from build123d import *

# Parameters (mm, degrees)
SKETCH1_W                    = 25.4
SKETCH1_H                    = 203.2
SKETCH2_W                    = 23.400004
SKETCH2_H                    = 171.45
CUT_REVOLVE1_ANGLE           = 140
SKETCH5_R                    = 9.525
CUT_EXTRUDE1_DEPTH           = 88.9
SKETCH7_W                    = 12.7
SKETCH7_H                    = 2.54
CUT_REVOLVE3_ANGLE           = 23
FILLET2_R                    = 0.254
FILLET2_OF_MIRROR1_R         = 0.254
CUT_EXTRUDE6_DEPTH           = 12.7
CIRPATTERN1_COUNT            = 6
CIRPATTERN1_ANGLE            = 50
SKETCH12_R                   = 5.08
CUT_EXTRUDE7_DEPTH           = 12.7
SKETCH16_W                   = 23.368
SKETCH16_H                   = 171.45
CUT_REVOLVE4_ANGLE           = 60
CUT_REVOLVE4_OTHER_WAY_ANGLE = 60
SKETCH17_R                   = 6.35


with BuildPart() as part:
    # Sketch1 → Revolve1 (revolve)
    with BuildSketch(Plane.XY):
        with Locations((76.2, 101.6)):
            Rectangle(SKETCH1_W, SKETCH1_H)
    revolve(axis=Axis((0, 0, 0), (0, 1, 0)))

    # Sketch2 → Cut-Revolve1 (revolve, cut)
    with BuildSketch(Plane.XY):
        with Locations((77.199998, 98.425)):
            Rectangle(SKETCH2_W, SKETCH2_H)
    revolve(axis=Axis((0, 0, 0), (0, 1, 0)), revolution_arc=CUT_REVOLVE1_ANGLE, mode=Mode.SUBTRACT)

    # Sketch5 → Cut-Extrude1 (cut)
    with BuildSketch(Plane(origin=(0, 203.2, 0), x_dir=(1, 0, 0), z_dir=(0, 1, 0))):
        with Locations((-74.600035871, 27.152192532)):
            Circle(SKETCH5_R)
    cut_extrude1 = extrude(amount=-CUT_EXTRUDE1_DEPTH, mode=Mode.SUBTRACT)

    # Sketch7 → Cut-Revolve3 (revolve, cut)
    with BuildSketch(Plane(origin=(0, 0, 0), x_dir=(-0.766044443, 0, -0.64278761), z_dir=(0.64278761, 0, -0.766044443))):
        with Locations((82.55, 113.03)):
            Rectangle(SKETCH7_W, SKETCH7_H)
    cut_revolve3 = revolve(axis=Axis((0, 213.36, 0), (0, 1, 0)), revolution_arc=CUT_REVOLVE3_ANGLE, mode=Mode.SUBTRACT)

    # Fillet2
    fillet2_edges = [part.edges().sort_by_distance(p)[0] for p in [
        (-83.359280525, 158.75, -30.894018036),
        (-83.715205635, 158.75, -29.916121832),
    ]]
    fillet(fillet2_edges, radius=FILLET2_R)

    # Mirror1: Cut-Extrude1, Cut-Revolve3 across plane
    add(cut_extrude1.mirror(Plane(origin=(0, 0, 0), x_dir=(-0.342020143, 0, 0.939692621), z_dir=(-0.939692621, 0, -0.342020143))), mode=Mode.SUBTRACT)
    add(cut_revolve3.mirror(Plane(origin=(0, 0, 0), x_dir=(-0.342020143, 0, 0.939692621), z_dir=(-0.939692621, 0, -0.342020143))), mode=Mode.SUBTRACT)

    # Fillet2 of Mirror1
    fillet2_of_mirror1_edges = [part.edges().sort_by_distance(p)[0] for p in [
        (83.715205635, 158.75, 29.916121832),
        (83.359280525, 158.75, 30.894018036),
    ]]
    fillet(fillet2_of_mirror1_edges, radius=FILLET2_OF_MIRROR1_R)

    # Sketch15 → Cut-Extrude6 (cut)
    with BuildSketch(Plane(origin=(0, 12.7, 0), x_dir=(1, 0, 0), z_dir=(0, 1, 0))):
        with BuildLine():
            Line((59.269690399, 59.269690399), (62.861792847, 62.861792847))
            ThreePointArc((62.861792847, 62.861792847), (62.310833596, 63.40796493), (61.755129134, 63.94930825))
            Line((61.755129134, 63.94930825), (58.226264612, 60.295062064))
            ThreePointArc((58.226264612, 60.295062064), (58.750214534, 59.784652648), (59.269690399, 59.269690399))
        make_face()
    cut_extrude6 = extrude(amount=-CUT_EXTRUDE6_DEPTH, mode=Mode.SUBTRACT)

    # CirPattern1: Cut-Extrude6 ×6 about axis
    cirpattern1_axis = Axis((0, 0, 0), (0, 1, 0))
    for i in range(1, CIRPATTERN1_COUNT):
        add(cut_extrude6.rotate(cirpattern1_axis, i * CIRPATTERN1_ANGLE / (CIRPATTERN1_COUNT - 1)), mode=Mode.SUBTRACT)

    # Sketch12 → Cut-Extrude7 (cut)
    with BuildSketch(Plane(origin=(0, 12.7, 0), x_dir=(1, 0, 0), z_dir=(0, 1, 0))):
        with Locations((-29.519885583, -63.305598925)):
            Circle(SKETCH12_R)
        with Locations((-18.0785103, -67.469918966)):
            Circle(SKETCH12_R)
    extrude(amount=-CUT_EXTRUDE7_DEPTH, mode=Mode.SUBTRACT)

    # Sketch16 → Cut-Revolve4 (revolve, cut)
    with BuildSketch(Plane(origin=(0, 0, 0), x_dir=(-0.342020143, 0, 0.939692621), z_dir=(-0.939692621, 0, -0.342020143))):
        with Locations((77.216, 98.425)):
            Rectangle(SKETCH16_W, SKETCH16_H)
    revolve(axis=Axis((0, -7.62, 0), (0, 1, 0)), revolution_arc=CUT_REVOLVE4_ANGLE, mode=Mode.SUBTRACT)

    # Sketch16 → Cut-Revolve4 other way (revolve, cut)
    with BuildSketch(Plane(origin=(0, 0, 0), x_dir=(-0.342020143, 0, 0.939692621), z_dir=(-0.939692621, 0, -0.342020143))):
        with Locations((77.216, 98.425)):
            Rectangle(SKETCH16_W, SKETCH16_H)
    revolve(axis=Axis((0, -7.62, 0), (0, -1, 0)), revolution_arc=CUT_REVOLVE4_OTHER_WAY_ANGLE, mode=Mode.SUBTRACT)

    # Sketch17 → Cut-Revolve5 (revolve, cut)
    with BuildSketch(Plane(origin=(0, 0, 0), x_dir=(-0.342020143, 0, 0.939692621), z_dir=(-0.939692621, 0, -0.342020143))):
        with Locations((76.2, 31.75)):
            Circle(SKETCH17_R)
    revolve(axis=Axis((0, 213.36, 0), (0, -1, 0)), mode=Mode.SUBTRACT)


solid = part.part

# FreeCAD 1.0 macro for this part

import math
import FreeCAD as App
import Part
import Sketcher

V = App.Vector
Q = App.Units.Quantity


def edges_at(feature, points):
    """Names of the edges that pass closest to the given points."""
    edges = feature.Shape.Edges
    near = lambda p: min(range(len(edges)), key=lambda i: edges[i].distToShape(Part.Vertex(*p))[0])
    return sorted({f"Edge{near(p) + 1}" for p in points})


def add_polygon(sketch, points):
    """Adds a closed chain of lines whose ends are joined by coincident constraints."""
    first, n = sketch.GeometryCount, len(points)
    for a, b in zip(points, points[1:] + points[:1]):
        sketch.addGeometry(Part.LineSegment(App.Vector(*a, 0), App.Vector(*b, 0)), False)
    for i in range(n):
        sketch.addConstraint(Sketcher.Constraint("Coincident", first + i, 2, first + (i + 1) % n, 1))

doc = App.newDocument("Part")
params = doc.addObject("Spreadsheet::Sheet", "Params")
for row, (alias, value) in enumerate([
    ("sketch1_width", "1 in"),
    ("sketch1_height", "8 in"),
    ("revolution_angle", "360 deg"),
    ("sketch2_height", "6.75 in"),
    ("groove_angle", "140 deg"),
    ("sketch3_diameter", "0.75 in"),
    ("pocket1_length", "3.5 in"),
    ("sketch4_width", "0.5 in"),
    ("sketch4_height", "0.1 in"),
    ("groove2_angle", "23 deg"),
    ("fillet_radius", "0.01 in"),
    ("fillet2_radius", "0.01 in"),
    ("sketch5_length", "0.2 in"),
    ("pocket2_length", "0.5 in"),
    ("sketch6_diameter", "0.4 in"),
    ("pocket3_length", "0.5 in"),
    ("sketch7_width", "0.92 in"),
    ("sketch7_height", "6.75 in"),
    ("groove3_angle", "60 deg"),
    ("sketch8_width", "0.92 in"),
    ("sketch8_height", "6.75 in"),
    ("groove4_angle", "60 deg"),
    ("sketch9_diameter", "0.5 in"),
    ("groove5_angle", "360 deg"),
], start=1):
    params.set(f"A{row}", alias)
    params.set(f"B{row}", "=" + value)
    params.setAlias(f"B{row}", alias)

body = doc.addObject("PartDesign::Body", "Body")

# Sketch on XY plane
sketch1 = doc.addObject("Sketcher::SketchObject", "Sketch")
body.addObject(sketch1)
sketch1.AttachmentSupport = (doc.XY_Plane, [""])
sketch1.MapMode = "FlatFace"
add_polygon(sketch1, [(64, 203), (64, 0), (89, 0), (89, 203)])  # lines 0-3
sketch1.addConstraint([
    Sketcher.Constraint("Vertical", 0),
    Sketcher.Constraint("Horizontal", 1),
    Sketcher.Constraint("Vertical", 2),
    Sketcher.Constraint("Horizontal", 3),
    Sketcher.Constraint("PointOnObject", 0, 2, -1),
    Sketcher.Constraint("DistanceX", 1, 1, 1, 2, Q("1 in")),
    Sketcher.Constraint("DistanceY", 0, 2, 0, 1, Q("8 in")),
    Sketcher.Constraint("DistanceX", -1, 1, 0, 2, Q("2.5 in")),
])
sketch1.setExpression("Constraints[9]", "Params.sketch1_width")
sketch1.setExpression("Constraints[10]", "Params.sketch1_height")
revolution = doc.addObject("PartDesign::Revolution", "Revolution")
body.addObject(revolution)
revolution.Profile = sketch1
revolution.ReferenceAxis = (sketch1, ["V_Axis"])
revolution.setExpression("Angle", "Params.revolution_angle")

# Sketch on XY plane
sketch2 = doc.addObject("Sketcher::SketchObject", "Sketch001")
body.addObject(sketch2)
sketch2.AttachmentSupport = (doc.XY_Plane, [""])
sketch2.MapMode = "FlatFace"
add_polygon(sketch2, [(65, 184), (65, 13), (89, 13), (89, 184)])  # lines 0-3
sketch2.addConstraint([
    Sketcher.Constraint("Vertical", 0),
    Sketcher.Constraint("Horizontal", 1),
    Sketcher.Constraint("Vertical", 2),
    Sketcher.Constraint("Horizontal", 3),
    Sketcher.Constraint("DistanceY", 0, 2, 0, 1, Q("6.75 in")),
    Sketcher.Constraint("DistanceY", -1, 1, 0, 2, Q("0.5 in")),
    Sketcher.Constraint("DistanceX", -1, 1, 1, 2, Q("3.5 in")),
    Sketcher.Constraint("DistanceX", 1, 1, 1, 2, 23.400004),
])
sketch2.setExpression("Constraints[8]", "Params.sketch2_height")
groove = doc.addObject("PartDesign::Groove", "Groove")
body.addObject(groove)
groove.Profile = sketch2
groove.ReferenceAxis = (sketch2, ["V_Axis"])
groove.setExpression("Angle", "Params.groove_angle")

# Sketch on XZ plane
sketch3 = doc.addObject("Sketcher::SketchObject", "Sketch002")
body.addObject(sketch3)
sketch3.AttachmentSupport = (doc.XZ_Plane, [""])
sketch3.MapMode = "FlatFace"
sketch3.AttachmentOffset = App.Placement(V(0, 0, -8 * 25.4), App.Rotation())
sketch3.addGeometry(Part.Circle(V(-75, -27, 0), V(0, 0, 1), 10), False)
sketch3.addConstraint([
    Sketcher.Constraint("Diameter", 0, Q("0.75 in")),
    Sketcher.Constraint("DistanceX", 0, 3, -1, 1, 74.600036),
    Sketcher.Constraint("DistanceY", 0, 3, -1, 1, 27.152193),
])
sketch3.setExpression("Constraints[0]", "Params.sketch3_diameter")
pocket1 = doc.addObject("PartDesign::Pocket", "Pocket")
body.addObject(pocket1)
pocket1.Profile = sketch3
pocket1.setExpression("Length", "Params.pocket1_length")
pocket1.Reversed = True

# Sketch on an angled plane
sketch4 = doc.addObject("Sketcher::SketchObject", "Sketch003")
body.addObject(sketch4)
sketch4.Placement = App.Placement(V(0, 0, 0), App.Rotation(V(-0.766044443, 0, -0.64278761), V(0, 1, 0), V(0.64278761, 0, -0.766044443), "ZXY"))
add_polygon(sketch4, [(76.2, 114.3), (76.2, 111.8), (88.9, 111.8), (88.9, 114.3)])  # lines 0-3
sketch4.addConstraint([
    Sketcher.Constraint("Vertical", 0),
    Sketcher.Constraint("Horizontal", 1),
    Sketcher.Constraint("Vertical", 2),
    Sketcher.Constraint("Horizontal", 3),
    Sketcher.Constraint("DistanceX", 1, 1, 1, 2, Q("0.5 in")),
    Sketcher.Constraint("DistanceY", 0, 2, 0, 1, Q("0.1 in")),
    Sketcher.Constraint("DistanceX", -1, 1, 0, 2, Q("3 in")),
    Sketcher.Constraint("DistanceY", -1, 1, 0, 2, Q("4.4 in")),
])
sketch4.setExpression("Constraints[8]", "Params.sketch4_width")
sketch4.setExpression("Constraints[9]", "Params.sketch4_height")
groove2 = doc.addObject("PartDesign::Groove", "Groove001")
body.addObject(groove2)
groove2.Profile = sketch4
groove2.ReferenceAxis = (sketch4, ["V_Axis"])
groove2.setExpression("Angle", "Params.groove2_angle")
doc.recompute()

fillet = doc.addObject("PartDesign::Fillet", "Fillet")
body.addObject(fillet)
fillet.Base = (groove2, edges_at(groove2, [(-83.359, 158.75, -30.894), (-83.715, 158.75, -29.916)]))
fillet.setExpression("Radius", "Params.fillet_radius")
doc.recompute()

datumplane = doc.addObject("PartDesign::Plane", "DatumPlane")
body.addObject(datumplane)
datumplane.Placement = App.Placement(V(0, 0, 0), App.Rotation(V(0.342020143, 0, -0.939692621), V(0, -1, 0), V(-0.939692621, 0, -0.342020143), "ZXY"))
mirrored = doc.addObject("PartDesign::Mirrored", "Mirrored")
body.addObject(mirrored)
mirrored.Originals = [pocket1, groove2]
mirrored.MirrorPlane = (datumplane, [""])
body.Tip = mirrored
doc.recompute()

fillet2 = doc.addObject("PartDesign::Fillet", "Fillet001")
body.addObject(fillet2)
fillet2.Base = (mirrored, edges_at(mirrored, [(83.715, 158.75, 29.916), (83.359, 158.75, 30.894)]))
fillet2.setExpression("Radius", "Params.fillet2_radius")

# Sketch on XZ plane
sketch5 = doc.addObject("Sketcher::SketchObject", "Sketch004")
body.addObject(sketch5)
sketch5.AttachmentSupport = (doc.XZ_Plane, [""])
sketch5.MapMode = "FlatFace"
sketch5.AttachmentOffset = App.Placement(V(0, 0, -0.5 * 25.4), App.Rotation())
sketch5.addGeometry([
    Part.LineSegment(V(59.3, -59.3, 0), V(62.9, -62.9, 0)),
    Part.ArcOfCircle(Part.Circle(V(0, 0, 0), V(0, 0, 1), 88.9), math.radians(-46), math.radians(-45)),
    Part.LineSegment(V(61.8, -63.9, 0), V(58.2, -60.3, 0)),
    Part.ArcOfCircle(Part.Circle(V(0, 0, 0), V(0, 0, 1), 83.8), math.radians(-46), math.radians(-45)),
], False)
sketch5.addConstraint([
    Sketcher.Constraint("Coincident", 0, 2, 1, 2),
    Sketcher.Constraint("Coincident", 1, 1, 2, 1),
    Sketcher.Constraint("Coincident", 2, 2, 3, 1),
    Sketcher.Constraint("Coincident", 3, 2, 0, 1),
    Sketcher.Constraint("Coincident", 1, 3, -1, 1),
    Sketcher.Constraint("Coincident", 3, 3, -1, 1),
    Sketcher.Constraint("Angle", 0, Q("-45 deg")),
    Sketcher.Constraint("Angle", 2, Q("134 deg")),
    Sketcher.Constraint("Distance", 0, Q("0.2 in")),
    Sketcher.Constraint("Radius", 3, 83.819991),
    Sketcher.Constraint("DistanceX", -1, 1, 1, 1, 61.755129),
    Sketcher.Constraint("DistanceX", -1, 1, 3, 2, 59.26969),
])
sketch5.setExpression("Constraints[8]", "Params.sketch5_length")
pocket2 = doc.addObject("PartDesign::Pocket", "Pocket001")
body.addObject(pocket2)
pocket2.Profile = sketch5
pocket2.setExpression("Length", "Params.pocket2_length")
pocket2.Reversed = True
doc.recompute()

polarpattern = doc.addObject("PartDesign::PolarPattern", "PolarPattern")
body.addObject(polarpattern)
polarpattern.Originals = [pocket2]
polarpattern.Axis = (doc.Y_Axis, [""])
polarpattern.Angle = 50
polarpattern.Occurrences = 6
body.Tip = polarpattern

# Sketch on XZ plane
sketch6 = doc.addObject("Sketcher::SketchObject", "Sketch005")
body.addObject(sketch6)
sketch6.AttachmentSupport = (doc.XZ_Plane, [""])
sketch6.MapMode = "FlatFace"
sketch6.AttachmentOffset = App.Placement(V(0, 0, -0.5 * 25.4), App.Rotation())
sketch6.addGeometry([
    Part.Circle(V(-30, 63, 0), V(0, 0, 1), 5),
    Part.Circle(V(-18, 67, 0), V(0, 0, 1), 5),
], False)
sketch6.addConstraint([
    Sketcher.Constraint("Equal", 0, 1),
    Sketcher.Constraint("Diameter", 0, Q("0.4 in")),
    Sketcher.Constraint("DistanceY", -1, 1, 0, 3, 63.305599),
    Sketcher.Constraint("DistanceX", 1, 3, -1, 1, 18.07851),
    Sketcher.Constraint("DistanceY", -1, 1, 1, 3, 67.469919),
    Sketcher.Constraint("DistanceX", 0, 3, -1, 1, 29.519886),
])
sketch6.setExpression("Constraints[1]", "Params.sketch6_diameter")
pocket3 = doc.addObject("PartDesign::Pocket", "Pocket002")
body.addObject(pocket3)
pocket3.Profile = sketch6
pocket3.setExpression("Length", "Params.pocket3_length")
pocket3.Reversed = True

# Sketch on an angled plane
sketch7 = doc.addObject("Sketcher::SketchObject", "Sketch006")
body.addObject(sketch7)
sketch7.Placement = App.Placement(V(0, 0, 0), App.Rotation(V(-0.342020143, 0, 0.939692621), V(0, 1, 0), V(-0.939692621, 0, -0.342020143), "ZXY"))
add_polygon(sketch7, [(66, 184), (66, 13), (89, 13), (89, 184)])  # lines 0-3
sketch7.addConstraint([
    Sketcher.Constraint("Vertical", 0),
    Sketcher.Constraint("Horizontal", 1),
    Sketcher.Constraint("Vertical", 2),
    Sketcher.Constraint("Horizontal", 3),
    Sketcher.Constraint("DistanceX", 1, 1, 1, 2, Q("0.92 in")),
    Sketcher.Constraint("DistanceY", 0, 2, 0, 1, Q("6.75 in")),
    Sketcher.Constraint("DistanceY", -1, 1, 0, 2, Q("0.5 in")),
    Sketcher.Constraint("DistanceX", -1, 1, 1, 2, Q("3.5 in")),
])
sketch7.setExpression("Constraints[8]", "Params.sketch7_width")
sketch7.setExpression("Constraints[9]", "Params.sketch7_height")
groove3 = doc.addObject("PartDesign::Groove", "Groove002")
body.addObject(groove3)
groove3.Profile = sketch7
groove3.ReferenceAxis = (sketch7, ["V_Axis"])
groove3.setExpression("Angle", "Params.groove3_angle")

# Sketch on an angled plane
sketch8 = doc.addObject("Sketcher::SketchObject", "Sketch007")
body.addObject(sketch8)
sketch8.Placement = App.Placement(V(0, 0, 0), App.Rotation(V(-0.342020143, 0, 0.939692621), V(0, 1, 0), V(-0.939692621, 0, -0.342020143), "ZXY"))
add_polygon(sketch8, [(66, 184), (66, 13), (89, 13), (89, 184)])  # lines 0-3
sketch8.addConstraint([
    Sketcher.Constraint("Vertical", 0),
    Sketcher.Constraint("Horizontal", 1),
    Sketcher.Constraint("Vertical", 2),
    Sketcher.Constraint("Horizontal", 3),
    Sketcher.Constraint("DistanceX", 1, 1, 1, 2, Q("0.92 in")),
    Sketcher.Constraint("DistanceY", 0, 2, 0, 1, Q("6.75 in")),
    Sketcher.Constraint("DistanceY", -1, 1, 0, 2, Q("0.5 in")),
    Sketcher.Constraint("DistanceX", -1, 1, 1, 2, Q("3.5 in")),
])
sketch8.setExpression("Constraints[8]", "Params.sketch8_width")
sketch8.setExpression("Constraints[9]", "Params.sketch8_height")
groove4 = doc.addObject("PartDesign::Groove", "Groove003")
body.addObject(groove4)
groove4.Profile = sketch8
groove4.ReferenceAxis = (sketch8, ["V_Axis"])
groove4.setExpression("Angle", "Params.groove4_angle")
groove4.Reversed = True

# Sketch on an angled plane
sketch9 = doc.addObject("Sketcher::SketchObject", "Sketch008")
body.addObject(sketch9)
sketch9.Placement = App.Placement(V(0, 0, 0), App.Rotation(V(-0.342020143, 0, 0.939692621), V(0, 1, 0), V(-0.939692621, 0, -0.342020143), "ZXY"))
sketch9.addGeometry(Part.Circle(V(76, 32, 0), V(0, 0, 1), 6), False)
sketch9.addConstraint([
    Sketcher.Constraint("Diameter", 0, Q("0.5 in")),
    Sketcher.Constraint("DistanceX", -1, 1, 0, 3, Q("3 in")),
    Sketcher.Constraint("DistanceY", -1, 1, 0, 3, Q("1.25 in")),
])
sketch9.setExpression("Constraints[0]", "Params.sketch9_diameter")
groove5 = doc.addObject("PartDesign::Groove", "Groove004")
body.addObject(groove5)
groove5.Profile = sketch9
groove5.ReferenceAxis = (sketch9, ["V_Axis"])
groove5.setExpression("Angle", "Params.groove5_angle")

doc.recompute()
